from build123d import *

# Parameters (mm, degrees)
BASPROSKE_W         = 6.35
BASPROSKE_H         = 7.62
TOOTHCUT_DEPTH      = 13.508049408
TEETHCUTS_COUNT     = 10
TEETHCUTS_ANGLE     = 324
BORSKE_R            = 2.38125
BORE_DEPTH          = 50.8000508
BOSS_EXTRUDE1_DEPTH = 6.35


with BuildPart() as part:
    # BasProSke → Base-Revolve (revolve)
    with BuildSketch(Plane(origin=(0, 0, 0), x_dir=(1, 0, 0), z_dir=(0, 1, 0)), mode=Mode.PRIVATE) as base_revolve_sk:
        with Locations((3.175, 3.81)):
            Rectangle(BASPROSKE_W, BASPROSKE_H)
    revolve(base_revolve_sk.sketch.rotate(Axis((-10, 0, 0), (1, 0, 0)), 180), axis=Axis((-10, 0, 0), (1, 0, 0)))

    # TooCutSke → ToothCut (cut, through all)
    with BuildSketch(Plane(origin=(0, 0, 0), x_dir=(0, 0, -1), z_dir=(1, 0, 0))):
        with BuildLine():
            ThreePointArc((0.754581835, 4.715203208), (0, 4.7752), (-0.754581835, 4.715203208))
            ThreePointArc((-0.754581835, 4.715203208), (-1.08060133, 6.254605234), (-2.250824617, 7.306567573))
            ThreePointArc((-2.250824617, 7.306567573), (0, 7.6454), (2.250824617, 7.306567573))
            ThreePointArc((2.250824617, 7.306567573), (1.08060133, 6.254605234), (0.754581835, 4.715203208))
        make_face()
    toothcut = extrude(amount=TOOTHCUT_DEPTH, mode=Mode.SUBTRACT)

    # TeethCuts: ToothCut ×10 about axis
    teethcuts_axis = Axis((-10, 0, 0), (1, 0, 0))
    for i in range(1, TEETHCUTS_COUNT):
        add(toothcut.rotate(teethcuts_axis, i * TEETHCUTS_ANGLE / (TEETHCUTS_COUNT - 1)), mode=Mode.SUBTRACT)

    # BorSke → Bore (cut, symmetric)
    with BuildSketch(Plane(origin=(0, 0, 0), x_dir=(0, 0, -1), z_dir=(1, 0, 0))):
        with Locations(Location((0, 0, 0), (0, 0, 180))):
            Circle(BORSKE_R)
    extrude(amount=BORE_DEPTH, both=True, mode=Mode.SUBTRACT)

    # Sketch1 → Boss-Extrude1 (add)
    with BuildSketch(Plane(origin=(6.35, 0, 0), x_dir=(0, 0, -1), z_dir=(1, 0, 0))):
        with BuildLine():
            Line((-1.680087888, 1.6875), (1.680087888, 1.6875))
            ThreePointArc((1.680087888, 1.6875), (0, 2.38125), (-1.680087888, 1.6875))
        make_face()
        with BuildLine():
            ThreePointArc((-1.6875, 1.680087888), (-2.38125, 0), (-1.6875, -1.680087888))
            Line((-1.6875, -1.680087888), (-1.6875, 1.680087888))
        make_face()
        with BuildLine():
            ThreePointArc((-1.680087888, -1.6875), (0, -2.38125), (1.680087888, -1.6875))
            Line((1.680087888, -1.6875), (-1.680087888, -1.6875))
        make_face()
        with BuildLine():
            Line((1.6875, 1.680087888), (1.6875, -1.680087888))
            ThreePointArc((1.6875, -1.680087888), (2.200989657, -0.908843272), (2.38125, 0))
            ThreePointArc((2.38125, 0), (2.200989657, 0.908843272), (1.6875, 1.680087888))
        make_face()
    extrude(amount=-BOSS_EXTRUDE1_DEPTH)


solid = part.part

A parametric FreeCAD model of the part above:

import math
import FreeCAD as App
import Part
import Sketcher

V = App.Vector
Q = App.Units.Quantity


def add_polygon(sketch, points):
    """Adds a closed chain of lines whose ends are joined by coincident constraints."""
    first, n = sketch.GeometryCount, len(points)
    for a, b in zip(points, points[1:] + points[:1]):
        sketch.addGeometry(Part.LineSegment(App.Vector(*a, 0), App.Vector(*b, 0)), False)
    for i in range(n):
        sketch.addConstraint(Sketcher.Constraint("Coincident", first + i, 2, first + (i + 1) % n, 1))

doc = App.newDocument("Part")
body = doc.addObject("PartDesign::Body", "Body")

# Sketch on XZ plane
sketch1 = doc.addObject("Sketcher::SketchObject", "Sketch")
body.addObject(sketch1)
sketch1.AttachmentSupport = (doc.XZ_Plane, [""])
sketch1.MapMode = "FlatFace"
add_polygon(sketch1, [(0, -8), (0, 0), (6, 0), (6, -8)])  # lines 0-3
sketch1.addConstraint([
    Sketcher.Constraint("Vertical", 0),
    Sketcher.Constraint("Horizontal", 1),
    Sketcher.Constraint("Vertical", 2),
    Sketcher.Constraint("Horizontal", 3),
    Sketcher.Constraint("Coincident", 0, 2, -1, 1),
    Sketcher.Constraint("DistanceY", 0, 1, 0, 2, Q("0.3 in")),
    Sketcher.Constraint("DistanceX", 1, 1, 1, 2, Q("0.25 in")),
])
revolution = doc.addObject("PartDesign::Revolution", "Revolution")
body.addObject(revolution)
revolution.Profile = sketch1
revolution.ReferenceAxis = (sketch1, ["H_Axis"])
revolution.Angle = 360

# Sketch on YZ plane
sketch2 = doc.addObject("Sketcher::SketchObject", "Sketch001")
body.addObject(sketch2)
sketch2.AttachmentSupport = (doc.YZ_Plane, [""])
sketch2.MapMode = "FlatFace"
sketch2.addGeometry([
    Part.ArcOfCircle(Part.Circle(V(0, 0, 0), V(0, 0, 1), 4.8), math.radians(-9.09), math.radians(9.09)),
    Part.ArcOfCircle(Part.Circle(V(5, -3.3, 0), V(0, 0, 1), 2.5), math.radians(24), math.radians(96)),
    Part.ArcOfCircle(Part.Circle(V(0, 0, 0), V(0, 0, 1), 7.6), math.radians(-17), math.radians(17)),
    Part.ArcOfCircle(Part.Circle(V(5, 3.3, 0), V(0, 0, 1), 2.5), math.radians(-96), math.radians(-24)),
], False)
sketch2.addConstraint([
    Sketcher.Constraint("Coincident", 0, 1, 1, 2),
    Sketcher.Constraint("Coincident", 1, 1, 2, 1),
    Sketcher.Constraint("Coincident", 2, 2, 3, 2),
    Sketcher.Constraint("Coincident", 3, 1, 0, 2),
    Sketcher.Constraint("Coincident", 0, 3, -1, 1),
    Sketcher.Constraint("Coincident", 2, 3, -1, 1),
    Sketcher.Constraint("Equal", 1, 3),
    Sketcher.Constraint("Symmetric", 1, 3, 3, 3, -1),
    Sketcher.Constraint("Radius", 1, Q("0.1 in")),
    Sketcher.Constraint("Radius", 0, Q("0.188 in")),
    Sketcher.Constraint("Radius", 2, Q("0.301 in")),
    Sketcher.Constraint("DistanceX", -1, 1, 1, 3, Q("4.98453 mm")),
    Sketcher.Constraint("DistanceY", 0, 1, -1, 1, Q("0.754582 mm")),
])
pocket1 = doc.addObject("PartDesign::Pocket", "Pocket")
body.addObject(pocket1)
pocket1.Profile = sketch2
pocket1.Type = "ThroughAll"
pocket1.Reversed = True
doc.recompute()

polarpattern = doc.addObject("PartDesign::PolarPattern", "PolarPattern")
body.addObject(polarpattern)
polarpattern.Originals = [pocket1]
polarpattern.Axis = (doc.X_Axis, [""])
polarpattern.Angle = 360
polarpattern.Occurrences = 10
body.Tip = polarpattern

# Sketch on YZ plane
sketch3 = doc.addObject("Sketcher::SketchObject", "Sketch002")
body.addObject(sketch3)
sketch3.AttachmentSupport = (doc.YZ_Plane, [""])
sketch3.MapMode = "FlatFace"
sketch3.addGeometry(Part.Circle(V(0, 0, 0), V(0, 0, 1), 2.4), False)
sketch3.addConstraint([
    Sketcher.Constraint("Coincident", 0, 3, -1, 1),
    Sketcher.Constraint("Diameter", 0, Q("0.1875 in")),
])
pocket2 = doc.addObject("PartDesign::Pocket", "Pocket001")
body.addObject(pocket2)
pocket2.Profile = sketch3
pocket2.Length = 101.600102
pocket2.Midplane = True

# Sketch on YZ plane
sketch4 = doc.addObject("Sketcher::SketchObject", "Sketch003")
body.addObject(sketch4)
sketch4.AttachmentSupport = (doc.YZ_Plane, [""])
sketch4.MapMode = "FlatFace"
sketch4.AttachmentOffset = App.Placement(V(0, 0, 0.25 * 25.4), App.Rotation())
sketch4.addGeometry([
    Part.LineSegment(V(1.7, 1.7, 0), V(1.7, -1.7, 0)),  # 0
    Part.ArcOfCircle(Part.Circle(V(0, 0, 0), V(0, 0, 1), 2.4), math.radians(-45), math.radians(45)),  # 1
    Part.ArcOfCircle(Part.Circle(V(0, 0, 0), V(0, 0, 1), 2.4), math.radians(45), math.radians(135)),  # 2
    Part.LineSegment(V(-1.7, 1.7, 0), V(1.7, 1.7, 0)),  # 3
    Part.ArcOfCircle(Part.Circle(V(0, 0, 0), V(0, 0, 1), 2.4), math.radians(135), math.radians(225)),  # 4
    Part.LineSegment(V(-1.7, -1.7, 0), V(-1.7, 1.7, 0)),  # 5
    Part.LineSegment(V(1.7, -1.7, 0), V(-1.7, -1.7, 0)),  # 6
    Part.ArcOfCircle(Part.Circle(V(0, 0, 0), V(0, 0, 1), 2.4), math.radians(-135), math.radians(-90)),  # 7
    Part.ArcOfCircle(Part.Circle(V(0, 0, 0), V(0, 0, 1), 2.4), math.radians(-90), math.radians(-45)),  # 8
], False)
sketch4.addConstraint([
    Sketcher.Constraint("Coincident", 0, 1, 1, 2),
    Sketcher.Constraint("Coincident", 1, 1, 0, 2),
    Sketcher.Constraint("Coincident", 2, 1, 3, 2),
    Sketcher.Constraint("Coincident", 3, 1, 2, 2),
    Sketcher.Constraint("Coincident", 4, 1, 5, 2),
    Sketcher.Constraint("Coincident", 5, 1, 4, 2),
    Sketcher.Constraint("Coincident", 6, 2, 7, 1),
    Sketcher.Constraint("Tangent", 7, 2, 8, 1),
    Sketcher.Constraint("Coincident", 8, 2, 6, 1),
    Sketcher.Constraint("Vertical", 0),
    Sketcher.Constraint("Horizontal", 3),
    Sketcher.Constraint("Vertical", 5),
    Sketcher.Constraint("Horizontal", 6),
    Sketcher.Constraint("Coincident", 1, 3, -1, 1),
    Sketcher.Constraint("Coincident", 2, 3, -1, 1),
    Sketcher.Constraint("Coincident", 4, 3, -1, 1),
    Sketcher.Constraint("Coincident", 7, 3, -1, 1),
    Sketcher.Constraint("Equal", 1, 2),
    Sketcher.Constraint("Equal", 2, 4),
    Sketcher.Constraint("Equal", 4, 7),
    Sketcher.Constraint("Equal", 7, 8),
    Sketcher.Constraint("PointOnObject", 7, 2, -2),
    Sketcher.Constraint("Horizontal", 0, 1, 4, 1),
    Sketcher.Constraint("Vertical", 3, 1, 6, 2),
    Sketcher.Constraint("Equal", 6, 0),
    Sketcher.Constraint("Radius", 1, Q("0.09375 in")),
    Sketcher.Constraint("DistanceX", -1, 1, 0, 1, Q("1.6875 mm")),
])
pad1 = doc.addObject("PartDesign::Pad", "Pad")
body.addObject(pad1)
pad1.Profile = sketch4
pad1.Length = Q("0.25 in")
pad1.Reversed = True

doc.recompute()
